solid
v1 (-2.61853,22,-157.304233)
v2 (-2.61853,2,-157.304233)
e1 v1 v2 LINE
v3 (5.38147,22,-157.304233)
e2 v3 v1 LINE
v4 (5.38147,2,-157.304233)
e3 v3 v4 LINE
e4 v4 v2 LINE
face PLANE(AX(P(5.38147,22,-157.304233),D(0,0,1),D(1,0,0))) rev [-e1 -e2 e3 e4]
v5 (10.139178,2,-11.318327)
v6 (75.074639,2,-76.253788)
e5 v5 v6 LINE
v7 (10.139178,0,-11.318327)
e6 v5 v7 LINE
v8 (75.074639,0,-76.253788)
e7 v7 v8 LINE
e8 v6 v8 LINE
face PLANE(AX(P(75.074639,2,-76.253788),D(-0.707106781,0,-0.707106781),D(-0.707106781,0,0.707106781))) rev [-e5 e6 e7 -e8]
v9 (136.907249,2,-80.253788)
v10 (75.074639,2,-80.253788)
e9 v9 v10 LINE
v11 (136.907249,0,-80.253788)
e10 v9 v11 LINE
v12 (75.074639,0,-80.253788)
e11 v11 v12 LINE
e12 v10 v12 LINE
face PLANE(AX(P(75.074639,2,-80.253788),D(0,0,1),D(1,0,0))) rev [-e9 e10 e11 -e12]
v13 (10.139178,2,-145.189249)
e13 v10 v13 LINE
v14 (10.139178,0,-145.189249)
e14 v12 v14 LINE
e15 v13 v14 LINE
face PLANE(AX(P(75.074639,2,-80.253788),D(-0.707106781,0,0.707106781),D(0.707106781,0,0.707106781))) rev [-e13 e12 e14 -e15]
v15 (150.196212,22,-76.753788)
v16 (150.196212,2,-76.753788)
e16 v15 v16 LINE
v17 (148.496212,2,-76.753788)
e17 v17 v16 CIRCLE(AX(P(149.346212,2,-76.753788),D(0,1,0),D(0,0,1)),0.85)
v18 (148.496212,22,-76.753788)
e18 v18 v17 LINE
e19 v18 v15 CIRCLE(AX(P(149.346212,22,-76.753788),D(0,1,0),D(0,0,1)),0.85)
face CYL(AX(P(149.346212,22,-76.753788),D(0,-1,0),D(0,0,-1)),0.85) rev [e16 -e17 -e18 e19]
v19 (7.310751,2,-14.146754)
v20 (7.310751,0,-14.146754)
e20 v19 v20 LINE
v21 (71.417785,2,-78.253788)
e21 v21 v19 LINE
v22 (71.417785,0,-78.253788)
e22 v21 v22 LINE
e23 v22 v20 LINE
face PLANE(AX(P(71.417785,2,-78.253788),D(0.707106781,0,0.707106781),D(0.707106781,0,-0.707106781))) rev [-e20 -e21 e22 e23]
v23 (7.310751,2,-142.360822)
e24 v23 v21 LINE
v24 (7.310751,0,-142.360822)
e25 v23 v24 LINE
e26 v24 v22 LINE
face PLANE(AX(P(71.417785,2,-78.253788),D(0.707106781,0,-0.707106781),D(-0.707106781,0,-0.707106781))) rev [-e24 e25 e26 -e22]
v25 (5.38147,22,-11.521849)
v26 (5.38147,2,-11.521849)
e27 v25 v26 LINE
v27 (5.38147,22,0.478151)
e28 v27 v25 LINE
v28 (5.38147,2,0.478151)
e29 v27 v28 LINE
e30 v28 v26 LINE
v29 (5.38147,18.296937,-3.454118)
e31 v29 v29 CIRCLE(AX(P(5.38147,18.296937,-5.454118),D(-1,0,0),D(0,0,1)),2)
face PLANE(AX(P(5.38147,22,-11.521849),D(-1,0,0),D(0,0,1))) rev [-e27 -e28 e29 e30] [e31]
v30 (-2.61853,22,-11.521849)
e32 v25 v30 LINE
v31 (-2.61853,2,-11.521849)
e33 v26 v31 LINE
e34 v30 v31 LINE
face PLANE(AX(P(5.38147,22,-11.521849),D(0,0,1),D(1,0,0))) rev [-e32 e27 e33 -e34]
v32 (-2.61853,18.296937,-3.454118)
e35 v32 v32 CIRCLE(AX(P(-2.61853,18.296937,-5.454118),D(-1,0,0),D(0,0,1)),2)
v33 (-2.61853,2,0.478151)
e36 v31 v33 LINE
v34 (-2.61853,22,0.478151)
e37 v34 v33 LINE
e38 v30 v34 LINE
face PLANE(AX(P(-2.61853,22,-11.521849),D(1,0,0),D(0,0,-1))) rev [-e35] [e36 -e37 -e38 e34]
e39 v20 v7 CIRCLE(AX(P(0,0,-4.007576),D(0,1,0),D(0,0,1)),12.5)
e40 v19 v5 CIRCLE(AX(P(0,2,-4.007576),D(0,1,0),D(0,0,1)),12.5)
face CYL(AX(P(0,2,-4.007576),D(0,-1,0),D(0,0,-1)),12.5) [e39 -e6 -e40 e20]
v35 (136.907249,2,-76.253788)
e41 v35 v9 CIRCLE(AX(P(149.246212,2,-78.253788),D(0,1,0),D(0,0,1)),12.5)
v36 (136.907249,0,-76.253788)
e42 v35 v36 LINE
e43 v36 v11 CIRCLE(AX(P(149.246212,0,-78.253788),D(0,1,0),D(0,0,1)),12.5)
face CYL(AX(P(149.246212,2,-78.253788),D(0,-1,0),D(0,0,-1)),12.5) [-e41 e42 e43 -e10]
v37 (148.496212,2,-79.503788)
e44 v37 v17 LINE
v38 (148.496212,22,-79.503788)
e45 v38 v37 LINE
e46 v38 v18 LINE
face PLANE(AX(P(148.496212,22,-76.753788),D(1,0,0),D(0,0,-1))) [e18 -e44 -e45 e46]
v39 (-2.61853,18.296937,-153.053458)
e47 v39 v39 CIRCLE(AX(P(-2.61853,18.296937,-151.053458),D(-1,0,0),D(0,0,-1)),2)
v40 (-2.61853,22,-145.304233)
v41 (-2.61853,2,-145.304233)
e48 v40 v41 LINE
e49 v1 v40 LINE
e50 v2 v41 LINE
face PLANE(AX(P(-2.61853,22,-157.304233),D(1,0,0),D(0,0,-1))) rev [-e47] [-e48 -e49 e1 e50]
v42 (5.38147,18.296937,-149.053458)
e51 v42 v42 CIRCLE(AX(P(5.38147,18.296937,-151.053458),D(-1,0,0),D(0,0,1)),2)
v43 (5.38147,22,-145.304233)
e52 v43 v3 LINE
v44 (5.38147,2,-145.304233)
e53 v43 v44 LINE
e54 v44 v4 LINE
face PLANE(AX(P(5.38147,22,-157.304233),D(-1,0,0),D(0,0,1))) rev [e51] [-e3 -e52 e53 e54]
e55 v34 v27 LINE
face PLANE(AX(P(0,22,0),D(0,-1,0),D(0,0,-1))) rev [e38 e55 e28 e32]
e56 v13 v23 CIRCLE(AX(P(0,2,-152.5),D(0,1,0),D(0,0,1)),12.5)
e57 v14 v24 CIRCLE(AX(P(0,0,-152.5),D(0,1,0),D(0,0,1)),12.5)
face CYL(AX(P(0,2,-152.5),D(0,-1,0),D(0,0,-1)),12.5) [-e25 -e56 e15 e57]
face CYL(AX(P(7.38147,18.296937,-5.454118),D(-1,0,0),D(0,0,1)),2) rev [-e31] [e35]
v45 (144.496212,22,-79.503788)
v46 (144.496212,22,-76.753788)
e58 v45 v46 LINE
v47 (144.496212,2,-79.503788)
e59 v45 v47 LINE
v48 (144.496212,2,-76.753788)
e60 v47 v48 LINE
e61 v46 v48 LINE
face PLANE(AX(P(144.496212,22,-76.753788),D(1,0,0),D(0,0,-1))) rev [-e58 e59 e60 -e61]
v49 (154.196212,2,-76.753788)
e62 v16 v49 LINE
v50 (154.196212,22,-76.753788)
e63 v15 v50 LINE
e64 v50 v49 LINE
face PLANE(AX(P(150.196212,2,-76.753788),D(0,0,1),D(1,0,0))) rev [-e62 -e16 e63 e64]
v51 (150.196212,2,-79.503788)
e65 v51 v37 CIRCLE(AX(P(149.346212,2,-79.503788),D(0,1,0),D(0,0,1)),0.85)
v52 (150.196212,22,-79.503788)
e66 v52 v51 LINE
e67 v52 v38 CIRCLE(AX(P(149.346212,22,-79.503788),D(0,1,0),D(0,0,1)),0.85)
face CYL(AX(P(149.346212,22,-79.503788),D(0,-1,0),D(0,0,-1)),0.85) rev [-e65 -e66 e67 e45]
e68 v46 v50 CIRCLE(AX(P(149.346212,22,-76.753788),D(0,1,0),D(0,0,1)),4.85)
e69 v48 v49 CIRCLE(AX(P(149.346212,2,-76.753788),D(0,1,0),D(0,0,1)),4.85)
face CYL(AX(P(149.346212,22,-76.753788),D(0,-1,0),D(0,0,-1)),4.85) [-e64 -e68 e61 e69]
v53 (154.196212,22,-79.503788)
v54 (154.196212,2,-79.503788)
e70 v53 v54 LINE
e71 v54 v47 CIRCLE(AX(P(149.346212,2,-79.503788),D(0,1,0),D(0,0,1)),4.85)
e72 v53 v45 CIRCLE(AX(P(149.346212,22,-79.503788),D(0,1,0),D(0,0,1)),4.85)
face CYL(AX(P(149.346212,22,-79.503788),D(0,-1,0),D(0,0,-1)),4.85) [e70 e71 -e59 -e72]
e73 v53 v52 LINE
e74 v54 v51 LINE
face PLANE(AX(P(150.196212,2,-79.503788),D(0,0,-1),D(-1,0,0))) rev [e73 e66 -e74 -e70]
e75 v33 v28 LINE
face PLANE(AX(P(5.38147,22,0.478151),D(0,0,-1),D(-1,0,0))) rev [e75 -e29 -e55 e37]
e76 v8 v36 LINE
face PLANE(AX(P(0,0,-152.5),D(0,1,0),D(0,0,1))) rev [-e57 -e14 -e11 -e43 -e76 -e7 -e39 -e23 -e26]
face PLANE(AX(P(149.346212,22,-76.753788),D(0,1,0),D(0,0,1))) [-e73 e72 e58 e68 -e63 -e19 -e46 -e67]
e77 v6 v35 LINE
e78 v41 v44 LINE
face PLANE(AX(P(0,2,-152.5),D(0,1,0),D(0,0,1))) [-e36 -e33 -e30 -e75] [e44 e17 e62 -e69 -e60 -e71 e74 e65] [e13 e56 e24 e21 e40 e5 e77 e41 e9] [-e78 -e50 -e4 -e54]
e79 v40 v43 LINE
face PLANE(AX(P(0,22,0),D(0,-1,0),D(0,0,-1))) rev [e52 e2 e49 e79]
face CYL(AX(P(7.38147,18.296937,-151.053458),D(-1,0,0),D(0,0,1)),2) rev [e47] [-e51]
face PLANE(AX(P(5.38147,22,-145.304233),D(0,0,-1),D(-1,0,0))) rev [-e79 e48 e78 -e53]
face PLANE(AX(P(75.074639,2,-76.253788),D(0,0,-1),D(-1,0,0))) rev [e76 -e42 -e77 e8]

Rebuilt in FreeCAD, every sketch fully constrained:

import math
import FreeCAD as App
import Part
import Sketcher
from FreeCAD import Vector


def add_polygon(sketch, points):
    """Adds a closed chain of lines whose ends are joined by coincident constraints."""
    first, n = sketch.GeometryCount, len(points)
    for a, b in zip(points, points[1:] + points[:1]):
        sketch.addGeometry(Part.LineSegment(App.Vector(*a, 0), App.Vector(*b, 0)), False)
    for i in range(n):
        sketch.addConstraint(Sketcher.Constraint("Coincident", first + i, 2, first + (i + 1) % n, 1))

doc = App.newDocument("Part")
params = doc.addObject("Spreadsheet::Sheet", "Params")
for row, (alias, value) in enumerate([
    ("sketch1_radius", "12.5 mm"),
    ("pad1_length", "2 mm"),
    ("sketch2_width", "8 mm"),
    ("sketch2_height", "12 mm"),
    ("sketch2_radius", "4.85 mm"),
    ("sketch2_radius2", "0.85 mm"),
    ("sketch2_height2", "2.75 mm"),
    ("pad2_length", "20 mm"),
    ("sketch3_width", "4 mm"),
    ("sketch3_height", "2.75 mm"),
    ("pocket1_length", "20 mm"),
    ("sketch4_diameter", "4 mm"),
    ("pocket2_length", "10 mm"),
], start=1):
    params.set(f"A{row}", alias)
    params.set(f"B{row}", "=" + value)
    params.setAlias(f"B{row}", alias)

body = doc.addObject("PartDesign::Body", "Body")

sketch1 = body.newObject("Sketcher::SketchObject", "Sketch")
sketch1.AttachmentSupport = (doc.getObject("XZ_Plane"), [""])
sketch1.MapMode = "FlatFace"
sketch1.addGeometry(Part.LineSegment(Vector(75.074639, -80.253788, 0), Vector(10.139178, -145.189249, 0)), False)
sketch1.addGeometry(Part.ArcOfCircle(Part.Circle(Vector(0, -152.5, 0), Vector(0, 0, 1), 12.5), math.radians(54.206896), math.radians(395.793104)), False)
sketch1.addGeometry(Part.LineSegment(Vector(7.310751, -142.360822, 0), Vector(71.417785, -78.253788, 0)), False)
sketch1.addGeometry(Part.LineSegment(Vector(71.417785, -78.253788, 0), Vector(7.310751, -14.146754, 0)), False)
sketch1.addGeometry(Part.ArcOfCircle(Part.Circle(Vector(0, -4.007576, 0), Vector(0, 0, 1), 12.5), math.radians(-35.793104), math.radians(305.793104)), False)
sketch1.addGeometry(Part.LineSegment(Vector(10.139178, -11.318327, 0), Vector(75.074639, -76.253788, 0)), False)
sketch1.addGeometry(Part.LineSegment(Vector(75.074639, -76.253788, 0), Vector(136.907249, -76.253788, 0)), False)
sketch1.addGeometry(Part.ArcOfCircle(Part.Circle(Vector(149.246212, -78.253788, 0), Vector(0, 0, 1), 12.5), math.radians(-170.793104), math.radians(170.793104)), False)
sketch1.addGeometry(Part.LineSegment(Vector(136.907249, -80.253788, 0), Vector(75.074639, -80.253788, 0)), False)
sketch1.addConstraint(Sketcher.Constraint("Coincident", 0, 2, 1, 2))
sketch1.addConstraint(Sketcher.Constraint("Coincident", 1, 1, 2, 1))
sketch1.addConstraint(Sketcher.Constraint("Coincident", 2, 2, 3, 1))
sketch1.addConstraint(Sketcher.Constraint("Coincident", 3, 2, 4, 2))
sketch1.addConstraint(Sketcher.Constraint("Coincident", 4, 1, 5, 1))
sketch1.addConstraint(Sketcher.Constraint("Coincident", 5, 2, 6, 1))
sketch1.addConstraint(Sketcher.Constraint("Coincident", 6, 2, 7, 2))
sketch1.addConstraint(Sketcher.Constraint("Coincident", 7, 1, 8, 1))
sketch1.addConstraint(Sketcher.Constraint("Coincident", 8, 2, 0, 1))
sketch1.addConstraint(Sketcher.Constraint("Horizontal", 6))
sketch1.addConstraint(Sketcher.Constraint("Horizontal", 8))
sketch1.addConstraint(Sketcher.Constraint("Equal", 1, 4))
sketch1.addConstraint(Sketcher.Constraint("Equal", 4, 7))
sketch1.addConstraint(Sketcher.Constraint("PointOnObject", 1, 3, -2))
sketch1.addConstraint(Sketcher.Constraint("PointOnObject", 4, 3, -2))
sketch1.addConstraint(Sketcher.Constraint("Parallel", 0, 2))
sketch1.addConstraint(Sketcher.Constraint("Perpendicular", 2, 3))
sketch1.addConstraint(Sketcher.Constraint("Parallel", 3, 5))
sketch1.addConstraint(Sketcher.Constraint("Horizontal", 7, 3, 2, 2))
sketch1.addConstraint(Sketcher.Constraint("Vertical", 1, 1, 3, 2))
sketch1.addConstraint(Sketcher.Constraint("Vertical", 0, 2, 4, 1))
sketch1.addConstraint(Sketcher.Constraint("Vertical", 6, 2, 7, 1))
sketch1.addConstraint(Sketcher.Constraint("Vertical", 5, 2, 8, 2))
sketch1.addConstraint(Sketcher.Constraint("Radius", 1, 12.5))
sketch1.addConstraint(Sketcher.Constraint("DistanceY", 2, 2, 5, 2, 2.0))
sketch1.addConstraint(Sketcher.Constraint("DistanceY", 1, 3, -1, 1, 152.5))
sketch1.addConstraint(Sketcher.Constraint("DistanceX", 6, 1, 6, 2, 61.83261))
sketch1.addConstraint(Sketcher.Constraint("DistanceX", 3, 2, 6, 2, 129.596499))
sketch1.addConstraint(Sketcher.Constraint("Distance", 0, 91.83261))
sketch1.addConstraint(Sketcher.Constraint("DistanceY", 0, 2, -1, 1, 145.189249))
sketch1.setExpression("Constraints[23]", "Params.sketch1_radius")
pad1 = body.newObject("PartDesign::Pad", "Pad")
pad1.Profile = sketch1
pad1.setExpression("Length", "Params.pad1_length")
pad1.Reversed = True

sketch2 = body.newObject("Sketcher::SketchObject", "Sketch001")
sketch2.AttachmentSupport = (doc.getObject("XZ_Plane"), [""])
sketch2.MapMode = "FlatFace"
sketch2.AttachmentOffset = App.Placement(Vector(0, 0, -2), App.Rotation())
sketch2.addGeometry(Part.LineSegment(Vector(144.496212, -79.503788, 0), Vector(144.496212, -76.753788, 0)), False)
sketch2.addGeometry(Part.ArcOfCircle(Part.Circle(Vector(149.346212, -76.753788, 0), Vector(0, 0, 1), 4.85), math.radians(0), math.radians(180)), False)
sketch2.addGeometry(Part.LineSegment(Vector(154.196212, -76.753788, 0), Vector(154.196212, -79.503788, 0)), False)
sketch2.addGeometry(Part.ArcOfCircle(Part.Circle(Vector(149.346212, -79.503788, 0), Vector(0, 0, 1), 4.85), math.radians(180), math.radians(360)), False)
sketch2.addGeometry(Part.LineSegment(Vector(148.496212, -76.753788, 0), Vector(148.496212, -79.503788, 0)), False)
sketch2.addGeometry(Part.ArcOfCircle(Part.Circle(Vector(149.346212, -79.503788, 0), Vector(0, 0, 1), 0.85), math.radians(180), math.radians(360)), False)
sketch2.addGeometry(Part.LineSegment(Vector(150.196212, -79.503788, 0), Vector(150.196212, -76.753788, 0)), False)
sketch2.addGeometry(Part.ArcOfCircle(Part.Circle(Vector(149.346212, -76.753788, 0), Vector(0, 0, 1), 0.85), math.radians(0), math.radians(180)), False)
add_polygon(sketch2, [(-2.61853, -11.521849), (-2.61853, 0.478151), (5.38147, 0.478151), (5.38147, -11.521849)])
add_polygon(sketch2, [(-2.61853, -157.304233), (-2.61853, -145.304233), (5.38147, -145.304233), (5.38147, -157.304233)])
sketch2.addConstraint(Sketcher.Constraint("Tangent", 0, 2, 1, 2))
sketch2.addConstraint(Sketcher.Constraint("Tangent", 1, 1, 2, 1))
sketch2.addConstraint(Sketcher.Constraint("Tangent", 2, 2, 3, 2))
sketch2.addConstraint(Sketcher.Constraint("Tangent", 3, 1, 0, 1))
sketch2.addConstraint(Sketcher.Constraint("Tangent", 4, 2, 5, 1))
sketch2.addConstraint(Sketcher.Constraint("Tangent", 5, 2, 6, 1))
sketch2.addConstraint(Sketcher.Constraint("Tangent", 6, 2, 7, 1))
sketch2.addConstraint(Sketcher.Constraint("Tangent", 7, 2, 4, 1))
sketch2.addConstraint(Sketcher.Constraint("Vertical", 0))
sketch2.addConstraint(Sketcher.Constraint("Vertical", 2))
sketch2.addConstraint(Sketcher.Constraint("Vertical", 4))
sketch2.addConstraint(Sketcher.Constraint("Vertical", 6))
sketch2.addConstraint(Sketcher.Constraint("Vertical", 8))
sketch2.addConstraint(Sketcher.Constraint("Horizontal", 9))
sketch2.addConstraint(Sketcher.Constraint("Vertical", 10))
sketch2.addConstraint(Sketcher.Constraint("Horizontal", 11))
sketch2.addConstraint(Sketcher.Constraint("Vertical", 12))
sketch2.addConstraint(Sketcher.Constraint("Horizontal", 13))
sketch2.addConstraint(Sketcher.Constraint("Vertical", 14))
sketch2.addConstraint(Sketcher.Constraint("Horizontal", 15))
sketch2.addConstraint(Sketcher.Constraint("Coincident", 5, 3, 3, 3))
sketch2.addConstraint(Sketcher.Constraint("Horizontal", 7, 3, 0, 2))
sketch2.addConstraint(Sketcher.Constraint("Vertical", 11, 2, 12, 2))
sketch2.addConstraint(Sketcher.Constraint("Vertical", 10, 2, 13, 2))
sketch2.addConstraint(Sketcher.Constraint("Equal", 10, 12))
sketch2.addConstraint(Sketcher.Constraint("DistanceX", 9, 1, 9, 2, 8.0))
sketch2.addConstraint(Sketcher.Constraint("DistanceY", 8, 1, 8, 2, 12.0))
sketch2.addConstraint(Sketcher.Constraint("Radius", 1, 4.85))
sketch2.addConstraint(Sketcher.Constraint("Radius", 5, 0.85))
sketch2.addConstraint(Sketcher.Constraint("DistanceY", 0, 1, 0, 2, 2.75))
sketch2.addConstraint(Sketcher.Constraint("DistanceX", 8, 2, -1, 1, 2.61853))
sketch2.addConstraint(Sketcher.Constraint("DistanceY", -1, 1, 8, 2, 0.478151))
sketch2.addConstraint(Sketcher.Constraint("DistanceY", 0, 2, 8, 2, 77.231939))
sketch2.addConstraint(Sketcher.Constraint("DistanceX", -1, 1, 1, 3, 149.346212))
sketch2.addConstraint(Sketcher.Constraint("DistanceY", 12, 2, -1, 1, 145.304233))
sketch2.setExpression("Constraints[33]", "Params.sketch2_width")
sketch2.setExpression("Constraints[34]", "Params.sketch2_height")
sketch2.setExpression("Constraints[35]", "Params.sketch2_radius")
sketch2.setExpression("Constraints[36]", "Params.sketch2_radius2")
sketch2.setExpression("Constraints[37]", "Params.sketch2_height2")
pad2 = body.newObject("PartDesign::Pad", "Pad001")
pad2.Profile = sketch2
pad2.setExpression("Length", "Params.pad2_length")
pad2.Reversed = True

sketch3 = body.newObject("Sketcher::SketchObject", "Sketch002")
sketch3.AttachmentSupport = (doc.getObject("XZ_Plane"), [""])
sketch3.MapMode = "FlatFace"
sketch3.AttachmentOffset = App.Placement(Vector(0, 0, -22), App.Rotation())
add_polygon(sketch3, [(150.196212, -79.503788), (150.196212, -76.753788), (154.196212, -76.753788), (154.196212, -79.503788)])
sketch3.addConstraint(Sketcher.Constraint("Vertical", 0))
sketch3.addConstraint(Sketcher.Constraint("Horizontal", 1))
sketch3.addConstraint(Sketcher.Constraint("Vertical", 2))
sketch3.addConstraint(Sketcher.Constraint("Horizontal", 3))
sketch3.addConstraint(Sketcher.Constraint("DistanceX", 1, 1, 1, 2, 4.0))
sketch3.addConstraint(Sketcher.Constraint("DistanceY", 0, 1, 0, 2, 2.75))
sketch3.addConstraint(Sketcher.Constraint("DistanceX", -1, 1, 0, 2, 150.196212))
sketch3.addConstraint(Sketcher.Constraint("DistanceY", 0, 2, -1, 1, 76.753788))
sketch3.setExpression("Constraints[8]", "Params.sketch3_width")
sketch3.setExpression("Constraints[9]", "Params.sketch3_height")
pocket1 = body.newObject("PartDesign::Pocket", "Pocket")
pocket1.Profile = sketch3
pocket1.setExpression("Length", "Params.pocket1_length")
pocket1.Reversed = True

sketch4 = body.newObject("Sketcher::SketchObject", "Sketch003")
sketch4.AttachmentSupport = (doc.getObject("YZ_Plane"), [""])
sketch4.MapMode = "FlatFace"
sketch4.AttachmentOffset = App.Placement(Vector(0, 0, -2.61853), App.Rotation())
sketch4.addGeometry(Part.Circle(Vector(18.296937, -5.454118, 0), Vector(0, 0, 1), 2), False)
sketch4.addGeometry(Part.Circle(Vector(18.296937, -151.053458, 0), Vector(0, 0, 1), 2), False)
sketch4.addConstraint(Sketcher.Constraint("Equal", 0, 1))
sketch4.addConstraint(Sketcher.Constraint("Vertical", 0, 3, 1, 3))
sketch4.addConstraint(Sketcher.Constraint("Diameter", 0, 4.0))
sketch4.addConstraint(Sketcher.Constraint("DistanceY", 0, 3, -1, 1, 5.454118))
sketch4.addConstraint(Sketcher.Constraint("DistanceY", 1, 3, 0, 3, 145.59934))
sketch4.addConstraint(Sketcher.Constraint("DistanceX", -1, 1, 0, 3, 18.296937))
sketch4.setExpression("Constraints[2]", "Params.sketch4_diameter")
pocket2 = body.newObject("PartDesign::Pocket", "Pocket001")
pocket2.Profile = sketch4
pocket2.setExpression("Length", "Params.pocket2_length")
pocket2.Reversed = True

doc.recompute()
